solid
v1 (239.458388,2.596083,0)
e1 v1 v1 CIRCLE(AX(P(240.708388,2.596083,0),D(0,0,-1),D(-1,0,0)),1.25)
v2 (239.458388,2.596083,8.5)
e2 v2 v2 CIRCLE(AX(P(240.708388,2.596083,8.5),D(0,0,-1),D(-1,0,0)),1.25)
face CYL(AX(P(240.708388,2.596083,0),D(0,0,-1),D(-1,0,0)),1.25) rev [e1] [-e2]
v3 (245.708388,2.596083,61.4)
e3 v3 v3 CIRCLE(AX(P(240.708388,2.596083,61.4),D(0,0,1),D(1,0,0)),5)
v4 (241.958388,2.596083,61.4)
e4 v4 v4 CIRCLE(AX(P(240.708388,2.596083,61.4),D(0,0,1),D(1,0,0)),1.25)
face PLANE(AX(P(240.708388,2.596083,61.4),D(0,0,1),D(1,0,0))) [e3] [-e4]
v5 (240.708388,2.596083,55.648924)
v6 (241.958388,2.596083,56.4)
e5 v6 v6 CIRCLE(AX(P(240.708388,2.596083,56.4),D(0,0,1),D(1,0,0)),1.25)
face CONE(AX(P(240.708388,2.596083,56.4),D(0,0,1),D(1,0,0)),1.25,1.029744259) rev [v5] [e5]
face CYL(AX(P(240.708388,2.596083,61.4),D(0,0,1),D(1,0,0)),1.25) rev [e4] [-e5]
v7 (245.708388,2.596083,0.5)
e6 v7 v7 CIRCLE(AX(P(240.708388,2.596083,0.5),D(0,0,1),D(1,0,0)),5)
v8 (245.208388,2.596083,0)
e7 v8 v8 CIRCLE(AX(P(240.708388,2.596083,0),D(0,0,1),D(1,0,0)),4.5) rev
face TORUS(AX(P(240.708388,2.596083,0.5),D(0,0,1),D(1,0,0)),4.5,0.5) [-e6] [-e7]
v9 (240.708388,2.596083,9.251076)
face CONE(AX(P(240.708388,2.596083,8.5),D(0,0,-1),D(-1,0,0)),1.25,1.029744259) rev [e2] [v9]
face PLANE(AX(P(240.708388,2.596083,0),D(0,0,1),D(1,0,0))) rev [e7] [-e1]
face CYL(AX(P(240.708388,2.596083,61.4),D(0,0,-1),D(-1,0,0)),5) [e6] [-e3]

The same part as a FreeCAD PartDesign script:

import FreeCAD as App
import Part
import Sketcher


def edges_at(feature, points):
    """Names of the edges that pass closest to the given points."""
    edges = feature.Shape.Edges
    near = lambda p: min(range(len(edges)), key=lambda i: edges[i].distToShape(Part.Vertex(*p))[0])
    return sorted({f"Edge{near(p) + 1}" for p in points})

doc = App.newDocument("Part")
params = doc.addObject("Spreadsheet::Sheet", "Params")
for row, (alias, value) in enumerate([
    ("sketch1_diameter", "10 mm"),
    ("pad1_length", "61.4 mm"),
    ("sketch2_diameter", "2.5 mm"),
    ("hole_diameter", "2.5 mm"),
    ("hole_depth", "8.5 mm"),
    ("fillet_radius", "0.5 mm"),
    ("sketch3_diameter", "2.5 mm"),
    ("hole2_diameter", "2.5 mm"),
    ("hole2_depth", "5 mm"),
], start=1):
    params.set(f"A{row}", alias)
    params.set(f"B{row}", "=" + value)
    params.setAlias(f"B{row}", alias)

body = doc.addObject("PartDesign::Body", "Body")

# Sketch on XY plane
sketch1 = body.newObject("Sketcher::SketchObject", "Sketch")
sketch1.AttachmentSupport = (doc.getObject("XY_Plane"), [""])
sketch1.MapMode = "FlatFace"
sketch1.addGeometry(Part.Circle(App.Vector(240.708388, 2.596083, 0), App.Vector(0, 0, 1), 5), False)
sketch1.addConstraint(Sketcher.Constraint("Diameter", 0, 10.0))
sketch1.addConstraint(Sketcher.Constraint("DistanceX", -1, 1, 0, 3, 240.708388))
sketch1.addConstraint(Sketcher.Constraint("DistanceY", -1, 1, 0, 3, 2.596083))
sketch1.setExpression("Constraints[0]", "Params.sketch1_diameter")
pad1 = body.newObject("PartDesign::Pad", "Pad")
pad1.Profile = sketch1
pad1.setExpression("Length", "Params.pad1_length")

# Sketch on XY plane
sketch2 = body.newObject("Sketcher::SketchObject", "Sketch001")
sketch2.AttachmentSupport = (doc.getObject("XY_Plane"), [""])
sketch2.MapMode = "FlatFace"
sketch2.addGeometry(Part.Circle(App.Vector(240.708388, 2.596083, 0), App.Vector(0, 0, 1), 1.25), False)
sketch2.addConstraint(Sketcher.Constraint("Diameter", 0, 2.5))
sketch2.addConstraint(Sketcher.Constraint("DistanceX", -1, 1, 0, 3, 240.708388))
sketch2.addConstraint(Sketcher.Constraint("DistanceY", -1, 1, 0, 3, 2.596083))
sketch2.setExpression("Constraints[0]", "Params.sketch2_diameter")
doc.recompute()
hole = body.newObject("PartDesign::Hole", "Hole")
hole.Profile = sketch2
hole.ThreadType = "None"
hole.setExpression("Diameter", "Params.hole_diameter")
hole.DepthType = "Dimension"
hole.setExpression("Depth", "Params.hole_depth")
hole.DrillPoint = "Angled"
hole.DrillPointAngle = 118
hole.Reversed = True
doc.recompute()

fillet = body.newObject("PartDesign::Fillet", "Fillet")
fillet.Base = (hole, edges_at(hole, [(235.708, 2.596, 0)]))
fillet.setExpression("Radius", "Params.fillet_radius")

# Sketch on XY plane
sketch3 = body.newObject("Sketcher::SketchObject", "Sketch002")
sketch3.AttachmentSupport = (doc.getObject("XY_Plane"), [""])
sketch3.MapMode = "FlatFace"
sketch3.AttachmentOffset = App.Placement(App.Vector(0, 0, 61.4), App.Rotation())
sketch3.addGeometry(Part.Circle(App.Vector(240.708388, 2.596083, 0), App.Vector(0, 0, 1), 1.25), False)
sketch3.addConstraint(Sketcher.Constraint("Diameter", 0, 2.5))
sketch3.addConstraint(Sketcher.Constraint("DistanceX", -1, 1, 0, 3, 240.708388))
sketch3.addConstraint(Sketcher.Constraint("DistanceY", -1, 1, 0, 3, 2.596083))
sketch3.setExpression("Constraints[0]", "Params.sketch3_diameter")
doc.recompute()
hole2 = body.newObject("PartDesign::Hole", "Hole001")
hole2.Profile = sketch3
hole2.ThreadType = "None"
hole2.setExpression("Diameter", "Params.hole2_diameter")
hole2.DepthType = "Dimension"
hole2.setExpression("Depth", "Params.hole2_depth")
hole2.DrillPoint = "Angled"
hole2.DrillPointAngle = 118

doc.recompute()
